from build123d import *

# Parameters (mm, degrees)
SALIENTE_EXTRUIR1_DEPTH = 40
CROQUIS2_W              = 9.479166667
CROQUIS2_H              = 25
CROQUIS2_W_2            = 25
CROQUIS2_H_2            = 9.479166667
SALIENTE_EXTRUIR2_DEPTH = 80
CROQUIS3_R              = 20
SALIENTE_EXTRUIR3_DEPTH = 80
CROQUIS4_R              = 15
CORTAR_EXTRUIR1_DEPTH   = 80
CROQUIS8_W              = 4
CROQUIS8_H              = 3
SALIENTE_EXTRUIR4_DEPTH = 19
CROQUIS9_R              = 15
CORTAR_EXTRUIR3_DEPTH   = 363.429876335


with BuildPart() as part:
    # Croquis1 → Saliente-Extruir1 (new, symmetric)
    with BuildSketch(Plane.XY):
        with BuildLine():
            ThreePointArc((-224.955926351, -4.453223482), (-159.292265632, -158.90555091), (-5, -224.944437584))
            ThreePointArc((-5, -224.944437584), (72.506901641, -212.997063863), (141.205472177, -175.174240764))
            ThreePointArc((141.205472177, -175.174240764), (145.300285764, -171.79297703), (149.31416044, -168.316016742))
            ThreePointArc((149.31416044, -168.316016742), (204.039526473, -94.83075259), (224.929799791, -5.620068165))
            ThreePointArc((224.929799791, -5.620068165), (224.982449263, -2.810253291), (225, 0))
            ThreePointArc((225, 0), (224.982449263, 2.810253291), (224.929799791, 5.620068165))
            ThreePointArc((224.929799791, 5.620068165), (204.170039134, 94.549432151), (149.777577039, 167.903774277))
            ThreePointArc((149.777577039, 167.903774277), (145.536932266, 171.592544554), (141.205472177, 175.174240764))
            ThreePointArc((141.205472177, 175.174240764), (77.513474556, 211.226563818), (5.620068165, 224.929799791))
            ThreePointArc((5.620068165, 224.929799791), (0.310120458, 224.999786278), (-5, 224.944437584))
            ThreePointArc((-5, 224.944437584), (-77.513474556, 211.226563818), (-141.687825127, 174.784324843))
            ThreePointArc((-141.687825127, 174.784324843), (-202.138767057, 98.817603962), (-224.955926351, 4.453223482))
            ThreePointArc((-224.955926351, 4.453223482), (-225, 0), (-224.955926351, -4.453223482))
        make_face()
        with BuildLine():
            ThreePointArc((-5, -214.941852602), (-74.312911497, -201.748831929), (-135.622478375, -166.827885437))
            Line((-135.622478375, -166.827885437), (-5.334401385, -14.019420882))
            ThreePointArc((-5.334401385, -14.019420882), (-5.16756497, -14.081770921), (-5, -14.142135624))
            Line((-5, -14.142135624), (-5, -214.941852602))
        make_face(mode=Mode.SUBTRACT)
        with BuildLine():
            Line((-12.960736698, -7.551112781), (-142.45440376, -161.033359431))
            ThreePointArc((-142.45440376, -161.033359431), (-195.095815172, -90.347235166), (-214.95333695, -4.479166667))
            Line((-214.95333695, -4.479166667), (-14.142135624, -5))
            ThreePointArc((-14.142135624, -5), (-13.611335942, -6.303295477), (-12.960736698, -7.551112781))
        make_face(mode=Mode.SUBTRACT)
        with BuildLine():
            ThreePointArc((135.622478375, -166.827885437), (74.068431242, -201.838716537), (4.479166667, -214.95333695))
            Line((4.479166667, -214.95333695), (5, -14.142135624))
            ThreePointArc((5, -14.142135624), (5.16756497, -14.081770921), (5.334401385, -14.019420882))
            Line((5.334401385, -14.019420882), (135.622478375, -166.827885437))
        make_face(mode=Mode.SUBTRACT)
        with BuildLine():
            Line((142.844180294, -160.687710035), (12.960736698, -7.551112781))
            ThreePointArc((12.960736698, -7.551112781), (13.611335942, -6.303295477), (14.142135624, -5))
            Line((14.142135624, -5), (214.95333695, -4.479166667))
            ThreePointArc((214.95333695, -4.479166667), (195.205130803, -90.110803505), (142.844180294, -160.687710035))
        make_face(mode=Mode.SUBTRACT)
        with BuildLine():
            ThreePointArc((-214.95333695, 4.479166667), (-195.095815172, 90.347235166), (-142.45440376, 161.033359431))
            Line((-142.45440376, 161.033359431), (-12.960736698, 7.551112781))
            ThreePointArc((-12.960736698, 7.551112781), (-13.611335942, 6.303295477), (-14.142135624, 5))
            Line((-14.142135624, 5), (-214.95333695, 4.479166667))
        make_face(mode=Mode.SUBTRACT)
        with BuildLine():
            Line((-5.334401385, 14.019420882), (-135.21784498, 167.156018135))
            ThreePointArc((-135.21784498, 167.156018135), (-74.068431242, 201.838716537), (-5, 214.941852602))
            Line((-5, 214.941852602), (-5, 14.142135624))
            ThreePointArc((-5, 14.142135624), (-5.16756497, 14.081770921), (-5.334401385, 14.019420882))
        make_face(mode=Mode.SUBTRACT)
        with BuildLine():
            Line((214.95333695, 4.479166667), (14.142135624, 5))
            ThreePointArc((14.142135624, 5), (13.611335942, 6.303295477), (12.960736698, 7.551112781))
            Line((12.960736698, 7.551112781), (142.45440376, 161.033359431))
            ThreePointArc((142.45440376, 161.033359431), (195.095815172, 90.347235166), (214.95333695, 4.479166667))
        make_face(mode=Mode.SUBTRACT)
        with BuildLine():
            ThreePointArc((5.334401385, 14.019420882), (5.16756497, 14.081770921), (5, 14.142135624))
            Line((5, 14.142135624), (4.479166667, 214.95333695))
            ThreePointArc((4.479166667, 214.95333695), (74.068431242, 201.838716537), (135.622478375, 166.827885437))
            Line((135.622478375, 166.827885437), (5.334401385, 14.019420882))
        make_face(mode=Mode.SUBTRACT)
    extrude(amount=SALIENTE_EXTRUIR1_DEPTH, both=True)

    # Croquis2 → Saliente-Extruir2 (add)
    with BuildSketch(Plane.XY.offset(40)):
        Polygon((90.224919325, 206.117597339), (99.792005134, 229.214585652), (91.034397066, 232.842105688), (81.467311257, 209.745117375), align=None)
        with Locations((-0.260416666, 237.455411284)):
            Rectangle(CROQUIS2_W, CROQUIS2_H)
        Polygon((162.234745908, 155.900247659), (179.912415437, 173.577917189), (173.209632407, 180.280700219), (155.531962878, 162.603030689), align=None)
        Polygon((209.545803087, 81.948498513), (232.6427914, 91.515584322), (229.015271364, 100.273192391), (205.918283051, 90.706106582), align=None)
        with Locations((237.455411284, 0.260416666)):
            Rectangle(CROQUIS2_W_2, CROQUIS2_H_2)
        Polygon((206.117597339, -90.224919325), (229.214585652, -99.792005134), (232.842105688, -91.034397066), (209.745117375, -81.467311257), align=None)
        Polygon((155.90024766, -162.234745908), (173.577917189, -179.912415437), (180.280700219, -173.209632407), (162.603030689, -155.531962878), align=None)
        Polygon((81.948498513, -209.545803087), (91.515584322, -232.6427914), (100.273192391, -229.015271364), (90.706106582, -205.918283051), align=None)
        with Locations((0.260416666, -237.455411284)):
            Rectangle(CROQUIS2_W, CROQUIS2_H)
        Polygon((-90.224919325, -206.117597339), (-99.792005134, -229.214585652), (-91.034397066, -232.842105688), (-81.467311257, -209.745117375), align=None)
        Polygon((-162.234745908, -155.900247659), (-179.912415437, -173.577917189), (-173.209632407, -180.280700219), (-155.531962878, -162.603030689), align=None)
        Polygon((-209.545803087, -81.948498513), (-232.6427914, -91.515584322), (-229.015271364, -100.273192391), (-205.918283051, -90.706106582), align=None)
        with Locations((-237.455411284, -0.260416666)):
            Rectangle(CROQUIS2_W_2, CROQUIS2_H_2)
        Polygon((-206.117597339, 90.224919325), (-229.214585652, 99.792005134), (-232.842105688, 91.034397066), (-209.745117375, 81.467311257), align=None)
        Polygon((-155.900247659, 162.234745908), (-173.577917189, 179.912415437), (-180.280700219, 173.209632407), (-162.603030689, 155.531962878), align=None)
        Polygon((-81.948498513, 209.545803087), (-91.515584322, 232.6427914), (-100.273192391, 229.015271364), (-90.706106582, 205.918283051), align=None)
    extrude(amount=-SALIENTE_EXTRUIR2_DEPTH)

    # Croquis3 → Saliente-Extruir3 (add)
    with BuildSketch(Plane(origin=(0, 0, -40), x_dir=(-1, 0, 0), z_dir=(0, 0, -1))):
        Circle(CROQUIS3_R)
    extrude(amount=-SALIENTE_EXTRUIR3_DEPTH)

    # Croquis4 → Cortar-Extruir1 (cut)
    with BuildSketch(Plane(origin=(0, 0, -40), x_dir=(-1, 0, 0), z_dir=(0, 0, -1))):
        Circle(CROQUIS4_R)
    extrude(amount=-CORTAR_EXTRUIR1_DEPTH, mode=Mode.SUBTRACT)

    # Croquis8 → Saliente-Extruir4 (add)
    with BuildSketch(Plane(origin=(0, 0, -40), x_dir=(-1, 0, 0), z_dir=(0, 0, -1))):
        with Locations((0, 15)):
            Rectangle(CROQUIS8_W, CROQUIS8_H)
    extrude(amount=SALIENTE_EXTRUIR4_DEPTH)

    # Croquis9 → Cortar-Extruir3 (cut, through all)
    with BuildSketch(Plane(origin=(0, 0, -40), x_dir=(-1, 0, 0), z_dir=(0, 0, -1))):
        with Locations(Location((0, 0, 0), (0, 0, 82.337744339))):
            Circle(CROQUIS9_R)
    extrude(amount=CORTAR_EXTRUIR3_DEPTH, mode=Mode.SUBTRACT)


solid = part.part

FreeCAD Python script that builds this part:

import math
import FreeCAD as App
import Part
import Sketcher

V = App.Vector
Q = App.Units.Quantity


def add_polygon(sketch, points):
    """Adds a closed chain of lines whose ends are joined by coincident constraints."""
    first, n = sketch.GeometryCount, len(points)
    for a, b in zip(points, points[1:] + points[:1]):
        sketch.addGeometry(Part.LineSegment(App.Vector(*a, 0), App.Vector(*b, 0)), False)
    for i in range(n):
        sketch.addConstraint(Sketcher.Constraint("Coincident", first + i, 2, first + (i + 1) % n, 1))

doc = App.newDocument("Part")
body = doc.addObject("PartDesign::Body", "Body")

sketch1 = doc.addObject("Sketcher::SketchObject", "Sketch")
body.addObject(sketch1)
sketch1.AttachmentSupport = (doc.XY_Plane, [""])
sketch1.MapMode = "FlatFace"
sketch1.addGeometry(Part.ArcOfCircle(Part.Circle(V(0, 0, 0), V(0, 0, 1), 225), math.radians(-178.865922), math.radians(-91.273344)), False)
sketch1.addGeometry(Part.ArcOfCircle(Part.Circle(V(0, 0, 0), V(0, 0, 1), 225), math.radians(-91.273344), math.radians(-51.128205)), False)
sketch1.addGeometry(Part.ArcOfCircle(Part.Circle(V(0, 0, 0), V(0, 0, 1), 225), math.radians(-51.128205), math.radians(-48.423573)), False)
sketch1.addGeometry(Part.ArcOfCircle(Part.Circle(V(0, 0, 0), V(0, 0, 1), 225), math.radians(-48.423573), math.radians(-1.431287)), False)
sketch1.addGeometry(Part.ArcOfCircle(Part.Circle(V(-0.000005, 0, 0), V(0, 0, 1), 225.000005), math.radians(-1.431287), math.radians(0)), False)
sketch1.addGeometry(Part.ArcOfCircle(Part.Circle(V(-0.000005, 0, 0), V(0, 0, 1), 225.000005), math.radians(0), math.radians(1.431287)), False)
sketch1.addGeometry(Part.ArcOfCircle(Part.Circle(V(0, 0, 0), V(0, 0, 1), 225), math.radians(1.431287), math.radians(48.26563)), False)
sketch1.addGeometry(Part.ArcOfCircle(Part.Circle(V(-0.000001, -0.000001, 0), V(0, 0, 1), 225.000001), math.radians(48.26563), math.radians(51.128205)), False)
sketch1.addGeometry(Part.ArcOfCircle(Part.Circle(V(0, 0, 0), V(0, 0, 1), 225), math.radians(51.128205), math.radians(88.568713)), False)
sketch1.addGeometry(Part.ArcOfCircle(Part.Circle(V(0, -0.000002, 0), V(0, 0, 1), 225.000002), math.radians(88.568713), math.radians(91.273344)), False)
sketch1.addGeometry(Part.ArcOfCircle(Part.Circle(V(0, 0, 0), V(0, 0, 1), 225), math.radians(91.273344), math.radians(129.029738)), False)
sketch1.addGeometry(Part.ArcOfCircle(Part.Circle(V(0, 0, 0), V(0, 0, 1), 225), math.radians(129.029738), math.radians(178.865922)), False)
sketch1.addGeometry(Part.ArcOfCircle(Part.Circle(V(-0.000002, 0, 0), V(0, 0, 1), 224.999998), math.radians(178.865922), math.radians(181.134078)), False)
sketch1.addGeometry(Part.LineSegment(V(-5, -14.142136, 0), V(-5, -214.941853, 0)), False)
sketch1.addGeometry(Part.ArcOfCircle(Part.Circle(V(0, 0, 0), V(0, 0, 1), 215), math.radians(-129.109334), math.radians(-91.33258)), False)
sketch1.addGeometry(Part.LineSegment(V(-135.622478, -166.827885, 0), V(-5.334401, -14.019421, 0)), False)
sketch1.addGeometry(Part.ArcOfCircle(Part.Circle(V(0.000002, 0.000006, 0), V(0, 0, 1), 15.000007), math.radians(-110.831862), math.radians(-109.471221)), False)
sketch1.addGeometry(Part.ArcOfCircle(Part.Circle(V(0, 0, 0), V(0, 0, 1), 15), math.radians(-160.528779), math.radians(-149.774303)), False)
sketch1.addGeometry(Part.LineSegment(V(-12.960737, -7.551113, 0), V(-142.454404, -161.033359, 0)), False)
sketch1.addGeometry(Part.ArcOfCircle(Part.Circle(V(0, 0, 0), V(0, 0, 1), 215), math.radians(-178.806252), math.radians(-131.496831)), False)
sketch1.addGeometry(Part.LineSegment(V(-214.953337, -4.479167, 0), V(-14.142136, -5, 0)), False)
sketch1.addGeometry(Part.LineSegment(V(5.334401, -14.019421, 0), V(135.622478, -166.827885, 0)), False)
sketch1.addGeometry(Part.ArcOfCircle(Part.Circle(V(0, 0, 0), V(0, 0, 1), 215), math.radians(-88.806252), math.radians(-50.890666)), False)
sketch1.addGeometry(Part.LineSegment(V(4.479167, -214.953337, 0), V(5, -14.142136, 0)), False)
sketch1.addGeometry(Part.ArcOfCircle(Part.Circle(V(-0.000002, 0.000006, 0), V(0, 0, 1), 15.000007), math.radians(-70.528779), math.radians(-69.168138)), False)
sketch1.addGeometry(Part.ArcOfCircle(Part.Circle(V(0, 0, 0), V(0, 0, 1), 215), math.radians(-48.364337), math.radians(-1.193748)), False)
sketch1.addGeometry(Part.LineSegment(V(142.84418, -160.68771, 0), V(12.960737, -7.551113, 0)), False)
sketch1.addGeometry(Part.ArcOfCircle(Part.Circle(V(0, 0, 0), V(0, 0, 1), 15), math.radians(-30.225697), math.radians(-19.471221)), False)
sketch1.addGeometry(Part.LineSegment(V(14.142136, -5, 0), V(214.953337, -4.479167, 0)), False)
sketch1.addGeometry(Part.LineSegment(V(-14.142136, 5, 0), V(-214.953337, 4.479167, 0)), False)
sketch1.addGeometry(Part.ArcOfCircle(Part.Circle(V(0, 0, 0), V(0, 0, 1), 215), math.radians(131.496831), math.radians(178.806252)), False)
sketch1.addGeometry(Part.LineSegment(V(-142.454404, 161.033359, 0), V(-12.960737, 7.551113, 0)), False)
sketch1.addGeometry(Part.ArcOfCircle(Part.Circle(V(0, 0, 0), V(0, 0, 1), 15), math.radians(149.774303), math.radians(160.528779)), False)
sketch1.addGeometry(Part.ArcOfCircle(Part.Circle(V(0.000002, -0.000006, 0), V(0, 0, 1), 15.000007), math.radians(109.471221), math.radians(110.831862)), False)
sketch1.addGeometry(Part.LineSegment(V(-5.334401, 14.019421, 0), V(-135.217845, 167.156018, 0)), False)
sketch1.addGeometry(Part.ArcOfCircle(Part.Circle(V(0, 0, 0), V(0, 0, 1), 215), math.radians(91.33258), math.radians(128.970502)), False)
sketch1.addGeometry(Part.LineSegment(V(-5, 214.941853, 0), V(-5, 14.142136, 0)), False)
sketch1.addGeometry(Part.ArcOfCircle(Part.Circle(V(0, 0, 0), V(0, 0, 1), 215), math.radians(1.193748), math.radians(48.503169)), False)
sketch1.addGeometry(Part.LineSegment(V(214.953337, 4.479167, 0), V(14.142136, 5, 0)), False)
sketch1.addGeometry(Part.ArcOfCircle(Part.Circle(V(0, 0, 0), V(0, 0, 1), 15), math.radians(19.471221), math.radians(30.225697)), False)
sketch1.addGeometry(Part.LineSegment(V(12.960737, 7.551113, 0), V(142.454404, 161.033359, 0)), False)
sketch1.addGeometry(Part.LineSegment(V(135.622478, 166.827885, 0), V(5.334401, 14.019421, 0)), False)
sketch1.addGeometry(Part.ArcOfCircle(Part.Circle(V(-0.000002, -0.000006, 0), V(0, 0, 1), 15.000007), math.radians(69.168138), math.radians(70.528779)), False)
sketch1.addGeometry(Part.LineSegment(V(5, 14.142136, 0), V(4.479167, 214.953337, 0)), False)
sketch1.addGeometry(Part.ArcOfCircle(Part.Circle(V(0, 0, 0), V(0, 0, 1), 215), math.radians(50.890666), math.radians(88.806252)), False)
sketch1.addConstraint(Sketcher.Constraint("Tangent", 0, 2, 1, 1))
sketch1.addConstraint(Sketcher.Constraint("Tangent", 1, 2, 2, 1))
sketch1.addConstraint(Sketcher.Constraint("Tangent", 2, 2, 3, 1))
sketch1.addConstraint(Sketcher.Constraint("Tangent", 3, 2, 4, 1))
sketch1.addConstraint(Sketcher.Constraint("Tangent", 4, 2, 5, 1))
sketch1.addConstraint(Sketcher.Constraint("Tangent", 5, 2, 6, 1))
sketch1.addConstraint(Sketcher.Constraint("Tangent", 6, 2, 7, 1))
sketch1.addConstraint(Sketcher.Constraint("Tangent", 7, 2, 8, 1))
sketch1.addConstraint(Sketcher.Constraint("Tangent", 8, 2, 9, 1))
sketch1.addConstraint(Sketcher.Constraint("Tangent", 9, 2, 10, 1))
sketch1.addConstraint(Sketcher.Constraint("Tangent", 10, 2, 11, 1))
sketch1.addConstraint(Sketcher.Constraint("Tangent", 11, 2, 12, 1))
sketch1.addConstraint(Sketcher.Constraint("Tangent", 12, 2, 0, 1))
sketch1.addConstraint(Sketcher.Constraint("Coincident", 13, 2, 14, 2))
sketch1.addConstraint(Sketcher.Constraint("Coincident", 14, 1, 15, 1))
sketch1.addConstraint(Sketcher.Constraint("Coincident", 15, 2, 16, 1))
sketch1.addConstraint(Sketcher.Constraint("Coincident", 16, 2, 13, 1))
sketch1.addConstraint(Sketcher.Constraint("Coincident", 17, 2, 18, 1))
sketch1.addConstraint(Sketcher.Constraint("Coincident", 18, 2, 19, 2))
sketch1.addConstraint(Sketcher.Constraint("Coincident", 19, 1, 20, 1))
sketch1.addConstraint(Sketcher.Constraint("Coincident", 20, 2, 17, 1))
sketch1.addConstraint(Sketcher.Constraint("Coincident", 21, 2, 22, 2))
sketch1.addConstraint(Sketcher.Constraint("Coincident", 22, 1, 23, 1))
sketch1.addConstraint(Sketcher.Constraint("Coincident", 23, 2, 24, 1))
sketch1.addConstraint(Sketcher.Constraint("Coincident", 24, 2, 21, 1))
sketch1.addConstraint(Sketcher.Constraint("Coincident", 25, 1, 26, 1))
sketch1.addConstraint(Sketcher.Constraint("Coincident", 26, 2, 27, 1))
sketch1.addConstraint(Sketcher.Constraint("Coincident", 27, 2, 28, 1))
sketch1.addConstraint(Sketcher.Constraint("Coincident", 28, 2, 25, 2))
sketch1.addConstraint(Sketcher.Constraint("Coincident", 29, 2, 30, 2))
sketch1.addConstraint(Sketcher.Constraint("Coincident", 30, 1, 31, 1))
sketch1.addConstraint(Sketcher.Constraint("Coincident", 31, 2, 32, 1))
sketch1.addConstraint(Sketcher.Constraint("Coincident", 32, 2, 29, 1))
sketch1.addConstraint(Sketcher.Constraint("Coincident", 33, 2, 34, 1))
sketch1.addConstraint(Sketcher.Constraint("Coincident", 34, 2, 35, 2))
sketch1.addConstraint(Sketcher.Constraint("Coincident", 35, 1, 36, 1))
sketch1.addConstraint(Sketcher.Constraint("Coincident", 36, 2, 33, 1))
sketch1.addConstraint(Sketcher.Constraint("Coincident", 37, 1, 38, 1))
sketch1.addConstraint(Sketcher.Constraint("Coincident", 38, 2, 39, 1))
sketch1.addConstraint(Sketcher.Constraint("Coincident", 39, 2, 40, 1))
sketch1.addConstraint(Sketcher.Constraint("Coincident", 40, 2, 37, 2))
sketch1.addConstraint(Sketcher.Constraint("Coincident", 41, 2, 42, 1))
sketch1.addConstraint(Sketcher.Constraint("Coincident", 42, 2, 43, 1))
sketch1.addConstraint(Sketcher.Constraint("Coincident", 43, 2, 44, 2))
sketch1.addConstraint(Sketcher.Constraint("Coincident", 44, 1, 41, 1))
sketch1.addConstraint(Sketcher.Constraint("Vertical", 13))
sketch1.addConstraint(Sketcher.Constraint("Vertical", 36))
sketch1.addConstraint(Sketcher.Constraint("Coincident", 0, 3, -1, 1))
sketch1.addConstraint(Sketcher.Constraint("Coincident", 2, 3, -1, 1))
sketch1.addConstraint(Sketcher.Constraint("Coincident", 4, 3, -1, 1))
sketch1.addConstraint(Sketcher.Constraint("Coincident", 6, 3, -1, 1))
sketch1.addConstraint(Sketcher.Constraint("Coincident", 8, 3, -1, 1))
sketch1.addConstraint(Sketcher.Constraint("Coincident", 10, 3, -1, 1))
sketch1.addConstraint(Sketcher.Constraint("Coincident", 14, 3, -1, 1))
sketch1.addConstraint(Sketcher.Constraint("Coincident", 16, 3, -1, 1))
sketch1.addConstraint(Sketcher.Constraint("Coincident", 17, 3, -1, 1))
sketch1.addConstraint(Sketcher.Constraint("Coincident", 19, 3, -1, 1))
sketch1.addConstraint(Sketcher.Constraint("Coincident", 22, 3, -1, 1))
sketch1.addConstraint(Sketcher.Constraint("Coincident", 24, 3, -1, 1))
sketch1.addConstraint(Sketcher.Constraint("Coincident", 25, 3, -1, 1))
sketch1.addConstraint(Sketcher.Constraint("Coincident", 27, 3, -1, 1))
sketch1.addConstraint(Sketcher.Constraint("Coincident", 30, 3, -1, 1))
sketch1.addConstraint(Sketcher.Constraint("Coincident", 32, 3, -1, 1))
sketch1.addConstraint(Sketcher.Constraint("Coincident", 33, 3, -1, 1))
sketch1.addConstraint(Sketcher.Constraint("Coincident", 35, 3, -1, 1))
sketch1.addConstraint(Sketcher.Constraint("Coincident", 37, 3, -1, 1))
sketch1.addConstraint(Sketcher.Constraint("Coincident", 39, 3, -1, 1))
sketch1.addConstraint(Sketcher.Constraint("Coincident", 42, 3, -1, 1))
sketch1.addConstraint(Sketcher.Constraint("Coincident", 44, 3, -1, 1))
sketch1.addConstraint(Sketcher.Constraint("Equal", 14, 19))
sketch1.addConstraint(Sketcher.Constraint("Equal", 19, 22))
sketch1.addConstraint(Sketcher.Constraint("Equal", 16, 24))
sketch1.addConstraint(Sketcher.Constraint("Equal", 22, 25))
sketch1.addConstraint(Sketcher.Constraint("Equal", 17, 27))
sketch1.addConstraint(Sketcher.Constraint("Equal", 25, 30))
sketch1.addConstraint(Sketcher.Constraint("Equal", 27, 32))
sketch1.addConstraint(Sketcher.Constraint("Equal", 24, 33))
sketch1.addConstraint(Sketcher.Constraint("Equal", 30, 35))
sketch1.addConstraint(Sketcher.Constraint("Equal", 35, 37))
sketch1.addConstraint(Sketcher.Constraint("Equal", 32, 39))
sketch1.addConstraint(Sketcher.Constraint("Equal", 33, 42))
sketch1.addConstraint(Sketcher.Constraint("Equal", 37, 44))
sketch1.addConstraint(Sketcher.Constraint("PointOnObject", 4, 2, -1))
sketch1.addConstraint(Sketcher.Constraint("Perpendicular", 20, 23))
sketch1.addConstraint(Sketcher.Constraint("Parallel", 28, 29))
sketch1.addConstraint(Sketcher.Constraint("Parallel", 26, 34))
sketch1.addConstraint(Sketcher.Constraint("Perpendicular", 23, 38))
sketch1.addConstraint(Sketcher.Constraint("Parallel", 18, 40))
sketch1.addConstraint(Sketcher.Constraint("Parallel", 15, 41))
sketch1.addConstraint(Sketcher.Constraint("Perpendicular", 29, 43))
sketch1.addConstraint(Sketcher.Constraint("Horizontal", 14, 1, 21, 2))
sketch1.addConstraint(Sketcher.Constraint("Horizontal", 16, 2, 23, 2))
sketch1.addConstraint(Sketcher.Constraint("Horizontal", 15, 2, 24, 2))
sketch1.addConstraint(Sketcher.Constraint("Horizontal", 17, 2, 26, 2))
sketch1.addConstraint(Sketcher.Constraint("Horizontal", 20, 2, 27, 2))
sketch1.addConstraint(Sketcher.Constraint("Horizontal", 19, 1, 28, 2))
sketch1.addConstraint(Sketcher.Constraint("Horizontal", 29, 2, 37, 1))
sketch1.addConstraint(Sketcher.Constraint("Horizontal", 31, 2, 39, 2))
sketch1.addConstraint(Sketcher.Constraint("Horizontal", 30, 1, 40, 2))
sketch1.addConstraint(Sketcher.Constraint("Horizontal", 33, 2, 41, 2))
sketch1.addConstraint(Sketcher.Constraint("Horizontal", 36, 2, 42, 2))
sketch1.addConstraint(Sketcher.Constraint("Vertical", 3, 2, 5, 2))
sketch1.addConstraint(Sketcher.Constraint("Vertical", 1, 2, 7, 2))
sketch1.addConstraint(Sketcher.Constraint("Vertical", 0, 2, 9, 2))
sketch1.addConstraint(Sketcher.Constraint("Vertical", 11, 2, 12, 2))
sketch1.addConstraint(Sketcher.Constraint("Vertical", 9, 2, 13, 2))
sketch1.addConstraint(Sketcher.Constraint("Vertical", 19, 1, 29, 2))
sketch1.addConstraint(Sketcher.Constraint("Vertical", 18, 2, 30, 1))
sketch1.addConstraint(Sketcher.Constraint("Vertical", 15, 2, 33, 2))
sketch1.addConstraint(Sketcher.Constraint("Vertical", 16, 2, 35, 1))
sketch1.addConstraint(Sketcher.Constraint("Equal", 15, 18))
sketch1.addConstraint(Sketcher.Constraint("Equal", 18, 20))
sketch1.addConstraint(Sketcher.Constraint("Equal", 21, 23))
sketch1.addConstraint(Sketcher.Constraint("Equal", 26, 34))
sketch1.addConstraint(Sketcher.Constraint("Radius", 0, Q("225 mm")))
sketch1.addConstraint(Sketcher.Constraint("Radius", 14, Q("215 mm")))
sketch1.addConstraint(Sketcher.Constraint("Radius", 17, Q("15 mm")))
sketch1.addConstraint(Sketcher.Constraint("DistanceX", 13, 2, -1, 1, Q("5 mm")))
sketch1.addConstraint(Sketcher.Constraint("DistanceY", 20, 2, -1, 1, Q("5 mm")))
sketch1.addConstraint(Sketcher.Constraint("DistanceX", -1, 1, 3, 2, Q("224.9298 mm")))
sketch1.addConstraint(Sketcher.Constraint("DistanceY", -1, 1, 8, 2, Q("224.9298 mm")))
sketch1.addConstraint(Sketcher.Constraint("DistanceX", 15, 2, -1, 1, Q("5.334401 mm")))
sketch1.addConstraint(Sketcher.Constraint("DistanceY", 1, 2, -1, 1, Q("175.174241 mm")))
sketch1.addConstraint(Sketcher.Constraint("DistanceX", -1, 1, 2, 2, Q("149.31416 mm")))
sketch1.addConstraint(Sketcher.Constraint("DistanceY", 18, 2, -1, 1, Q("161.033359 mm")))
sketch1.addConstraint(Sketcher.Constraint("DistanceX", -1, 1, 21, 2, Q("135.622478 mm")))
sketch1.addConstraint(Sketcher.Constraint("DistanceX", -1, 1, 6, 2, Q("149.777577 mm")))
sketch1.addConstraint(Sketcher.Constraint("DistanceX", 10, 2, -1, 1, Q("141.687825 mm")))
sketch1.addConstraint(Sketcher.Constraint("DistanceX", 11, 2, -1, 1, Q("224.955926 mm")))
pad1 = doc.addObject("PartDesign::Pad", "Pad")
body.addObject(pad1)
pad1.Profile = sketch1
pad1.Length = 80
pad1.Midplane = True

sketch2 = doc.addObject("Sketcher::SketchObject", "Sketch001")
body.addObject(sketch2)
sketch2.AttachmentSupport = (doc.XY_Plane, [""])
sketch2.MapMode = "FlatFace"
sketch2.AttachmentOffset = App.Placement(V(0, 0, 40), App.Rotation())
add_polygon(sketch2, [(90.224919, 206.117597), (99.792005, 229.214586), (91.034397, 232.842106), (81.467311, 209.745117)])
add_polygon(sketch2, [(-5, 249.955411), (-5, 224.955411), (4.479167, 224.955411), (4.479167, 249.955411)])
add_polygon(sketch2, [(162.234746, 155.900248), (179.912415, 173.577917), (173.209632, 180.2807), (155.531963, 162.603031)])
add_polygon(sketch2, [(209.545803, 81.948499), (232.642791, 91.515584), (229.015271, 100.273192), (205.918283, 90.706107)])
add_polygon(sketch2, [(224.955411, 5), (224.955411, -4.479167), (249.955411, -4.479167), (249.955411, 5)])
add_polygon(sketch2, [(206.117597, -90.224919), (229.214586, -99.792005), (232.842106, -91.034397), (209.745117, -81.467311)])
add_polygon(sketch2, [(155.900248, -162.234746), (173.577917, -179.912415), (180.2807, -173.209632), (162.603031, -155.531963)])
add_polygon(sketch2, [(81.948499, -209.545803), (91.515584, -232.642791), (100.273192, -229.015271), (90.706107, -205.918283)])
add_polygon(sketch2, [(-4.479167, -224.955411), (-4.479167, -249.955411), (5, -249.955411), (5, -224.955411)])
add_polygon(sketch2, [(-90.224919, -206.117597), (-99.792005, -229.214586), (-91.034397, -232.842106), (-81.467311, -209.745117)])
add_polygon(sketch2, [(-162.234746, -155.900248), (-179.912415, -173.577917), (-173.209632, -180.2807), (-155.531963, -162.603031)])
add_polygon(sketch2, [(-209.545803, -81.948499), (-232.642791, -91.515584), (-229.015271, -100.273192), (-205.918283, -90.706107)])
add_polygon(sketch2, [(-249.955411, 4.479167), (-249.955411, -5), (-224.955411, -5), (-224.955411, 4.479167)])
add_polygon(sketch2, [(-206.117597, 90.224919), (-229.214586, 99.792005), (-232.842106, 91.034397), (-209.745117, 81.467311)])
add_polygon(sketch2, [(-155.900248, 162.234746), (-173.577917, 179.912415), (-180.2807, 173.209632), (-162.603031, 155.531963)])
add_polygon(sketch2, [(-81.948499, 209.545803), (-91.515584, 232.642791), (-100.273192, 229.015271), (-90.706107, 205.918283)])
sketch2.addConstraint(Sketcher.Constraint("Vertical", 4))
sketch2.addConstraint(Sketcher.Constraint("Horizontal", 5))
sketch2.addConstraint(Sketcher.Constraint("Vertical", 6))
sketch2.addConstraint(Sketcher.Constraint("Horizontal", 7))
sketch2.addConstraint(Sketcher.Constraint("Vertical", 16))
sketch2.addConstraint(Sketcher.Constraint("Horizontal", 17))
sketch2.addConstraint(Sketcher.Constraint("Vertical", 18))
sketch2.addConstraint(Sketcher.Constraint("Horizontal", 19))
sketch2.addConstraint(Sketcher.Constraint("Vertical", 32))
sketch2.addConstraint(Sketcher.Constraint("Horizontal", 33))
sketch2.addConstraint(Sketcher.Constraint("Vertical", 34))
sketch2.addConstraint(Sketcher.Constraint("Horizontal", 35))
sketch2.addConstraint(Sketcher.Constraint("Vertical", 48))
sketch2.addConstraint(Sketcher.Constraint("Horizontal", 49))
sketch2.addConstraint(Sketcher.Constraint("Vertical", 50))
sketch2.addConstraint(Sketcher.Constraint("Horizontal", 51))
sketch2.addConstraint(Sketcher.Constraint("Symmetric", 6, 2, 32, 2, -1, 1))
sketch2.addConstraint(Sketcher.Constraint("Symmetric", 4, 2, 34, 2, -1, 1))
sketch2.addConstraint(Sketcher.Constraint("Symmetric", 0, 2, 36, 2, -1, 1))
sketch2.addConstraint(Sketcher.Constraint("Symmetric", 1, 2, 37, 2, -1, 1))
sketch2.addConstraint(Sketcher.Constraint("Symmetric", 2, 2, 38, 2, -1, 1))
sketch2.addConstraint(Sketcher.Constraint("Symmetric", 3, 2, 39, 2, -1, 1))
sketch2.addConstraint(Sketcher.Constraint("Symmetric", 8, 2, 40, 2, -1, 1))
sketch2.addConstraint(Sketcher.Constraint("Symmetric", 9, 2, 41, 2, -1, 1))
sketch2.addConstraint(Sketcher.Constraint("Symmetric", 10, 2, 42, 2, -1, 1))
sketch2.addConstraint(Sketcher.Constraint("Symmetric", 11, 2, 43, 2, -1, 1))
sketch2.addConstraint(Sketcher.Constraint("Symmetric", 12, 2, 44, 2, -1, 1))
sketch2.addConstraint(Sketcher.Constraint("Symmetric", 13, 2, 45, 2, -1, 1))
sketch2.addConstraint(Sketcher.Constraint("Symmetric", 14, 2, 46, 2, -1, 1))
sketch2.addConstraint(Sketcher.Constraint("Symmetric", 15, 2, 47, 2, -1, 1))
sketch2.addConstraint(Sketcher.Constraint("Symmetric", 18, 2, 48, 2, -1, 1))
sketch2.addConstraint(Sketcher.Constraint("Symmetric", 16, 2, 50, 2, -1, 1))
sketch2.addConstraint(Sketcher.Constraint("Symmetric", 20, 2, 52, 2, -1, 1))
sketch2.addConstraint(Sketcher.Constraint("Symmetric", 21, 2, 53, 2, -1, 1))
sketch2.addConstraint(Sketcher.Constraint("Symmetric", 22, 2, 54, 2, -1, 1))
sketch2.addConstraint(Sketcher.Constraint("Symmetric", 23, 2, 55, 2, -1, 1))
sketch2.addConstraint(Sketcher.Constraint("Symmetric", 24, 2, 56, 2, -1, 1))
sketch2.addConstraint(Sketcher.Constraint("Symmetric", 25, 2, 57, 2, -1, 1))
sketch2.addConstraint(Sketcher.Constraint("Symmetric", 26, 2, 58, 2, -1, 1))
sketch2.addConstraint(Sketcher.Constraint("Symmetric", 27, 2, 59, 2, -1, 1))
sketch2.addConstraint(Sketcher.Constraint("Symmetric", 28, 2, 60, 2, -1, 1))
sketch2.addConstraint(Sketcher.Constraint("Symmetric", 29, 2, 61, 2, -1, 1))
sketch2.addConstraint(Sketcher.Constraint("Symmetric", 30, 2, 62, 2, -1, 1))
sketch2.addConstraint(Sketcher.Constraint("Symmetric", 31, 2, 63, 2, -1, 1))
sketch2.addConstraint(Sketcher.Constraint("Perpendicular", 0, 1))
sketch2.addConstraint(Sketcher.Constraint("Perpendicular", 1, 2))
sketch2.addConstraint(Sketcher.Constraint("Perpendicular", 2, 3))
sketch2.addConstraint(Sketcher.Constraint("Perpendicular", 8, 9))
sketch2.addConstraint(Sketcher.Constraint("Perpendicular", 9, 10))
sketch2.addConstraint(Sketcher.Constraint("Perpendicular", 10, 11))
sketch2.addConstraint(Sketcher.Constraint("Perpendicular", 12, 13))
sketch2.addConstraint(Sketcher.Constraint("Perpendicular", 13, 14))
sketch2.addConstraint(Sketcher.Constraint("Perpendicular", 14, 15))
sketch2.addConstraint(Sketcher.Constraint("Parallel", 3, 20))
sketch2.addConstraint(Sketcher.Constraint("Perpendicular", 20, 21))
sketch2.addConstraint(Sketcher.Constraint("Perpendicular", 21, 22))
sketch2.addConstraint(Sketcher.Constraint("Perpendicular", 22, 23))
sketch2.addConstraint(Sketcher.Constraint("Parallel", 11, 24))
sketch2.addConstraint(Sketcher.Constraint("Perpendicular", 24, 25))
sketch2.addConstraint(Sketcher.Constraint("Perpendicular", 25, 26))
sketch2.addConstraint(Sketcher.Constraint("Perpendicular", 26, 27))
sketch2.addConstraint(Sketcher.Constraint("Parallel", 15, 28))
sketch2.addConstraint(Sketcher.Constraint("Perpendicular", 28, 29))
sketch2.addConstraint(Sketcher.Constraint("Perpendicular", 29, 30))
sketch2.addConstraint(Sketcher.Constraint("Perpendicular", 30, 31))
sketch2.addConstraint(Sketcher.Constraint("Equal", 51, 4))
sketch2.addConstraint(Sketcher.Constraint("Equal", 35, 16))
sketch2.addConstraint(Sketcher.Constraint("Equal", 2, 8))
sketch2.addConstraint(Sketcher.Constraint("Equal", 3, 9))
sketch2.addConstraint(Sketcher.Constraint("Equal", 10, 12))
sketch2.addConstraint(Sketcher.Constraint("Equal", 11, 13))
sketch2.addConstraint(Sketcher.Constraint("Equal", 14, 20))
sketch2.addConstraint(Sketcher.Constraint("Equal", 15, 21))
sketch2.addConstraint(Sketcher.Constraint("Equal", 22, 24))
sketch2.addConstraint(Sketcher.Constraint("Equal", 23, 25))
sketch2.addConstraint(Sketcher.Constraint("Equal", 26, 28))
sketch2.addConstraint(Sketcher.Constraint("Equal", 27, 29))
sketch2.addConstraint(Sketcher.Constraint("DistanceX", 17, 1, 17, 2, Q("25 mm")))
sketch2.addConstraint(Sketcher.Constraint("Angle", 8, Q("45 deg")))
sketch2.addConstraint(Sketcher.Constraint("Distance", 0, Q("25 mm")))
sketch2.addConstraint(Sketcher.Constraint("DistanceX", 4, 2, -1, 1, Q("5 mm")))
sketch2.addConstraint(Sketcher.Constraint("DistanceY", -1, 1, 18, 2, Q("5 mm")))
sketch2.addConstraint(Sketcher.Constraint("Angle", 0, Q("67.5 deg")))
sketch2.addConstraint(Sketcher.Constraint("Angle", 12, Q("22.5 deg")))
sketch2.addConstraint(Sketcher.Constraint("DistanceY", -1, 1, 9, 2, Q("180.2807 mm")))
sketch2.addConstraint(Sketcher.Constraint("DistanceY", -1, 1, 15, 2, Q("81.948499 mm")))
sketch2.addConstraint(Sketcher.Constraint("DistanceX", -1, 1, 25, 2, Q("180.2807 mm")))
sketch2.addConstraint(Sketcher.Constraint("DistanceX", -1, 1, 31, 2, Q("81.948499 mm")))
sketch2.addConstraint(Sketcher.Constraint("DistanceX", 5, 1, 5, 2, Q("9.479167 mm")))
sketch2.addConstraint(Sketcher.Constraint("DistanceX", -1, 1, 2, 2, Q("81.467311 mm")))
sketch2.addConstraint(Sketcher.Constraint("DistanceX", -1, 1, 3, 2, Q("90.224919 mm")))
sketch2.addConstraint(Sketcher.Constraint("DistanceY", -1, 1, 4, 2, Q("224.955411 mm")))
sketch2.addConstraint(Sketcher.Constraint("DistanceX", -1, 1, 12, 2, Q("232.642791 mm")))
sketch2.addConstraint(Sketcher.Constraint("DistanceX", -1, 1, 16, 2, Q("224.955411 mm")))
sketch2.addConstraint(Sketcher.Constraint("DistanceY", 22, 2, -1, 1, Q("81.467311 mm")))
sketch2.addConstraint(Sketcher.Constraint("DistanceY", 28, 2, -1, 1, Q("232.642791 mm")))
sketch2.addConstraint(Sketcher.Constraint("DistanceY", -1, 1, 0, 2, Q("229.214586 mm")))
sketch2.addConstraint(Sketcher.Constraint("DistanceX", -1, 1, 8, 2, Q("179.912415 mm")))
sketch2.addConstraint(Sketcher.Constraint("DistanceX", -1, 1, 20, 2, Q("229.214586 mm")))
sketch2.addConstraint(Sketcher.Constraint("DistanceY", 24, 2, -1, 1, Q("179.912415 mm")))
pad2 = doc.addObject("PartDesign::Pad", "Pad001")
body.addObject(pad2)
pad2.Profile = sketch2
pad2.Length = 80
pad2.Reversed = True

sketch3 = doc.addObject("Sketcher::SketchObject", "Sketch002")
body.addObject(sketch3)
sketch3.AttachmentSupport = (doc.XY_Plane, [""])
sketch3.MapMode = "FlatFace"
sketch3.AttachmentOffset = App.Placement(V(0, 0, -40), App.Rotation())
sketch3.addGeometry(Part.Circle(V(0, 0, 0), V(0, 0, 1), 20), False)
sketch3.addConstraint(Sketcher.Constraint("Coincident", 0, 3, -1, 1))
sketch3.addConstraint(Sketcher.Constraint("Diameter", 0, Q("40 mm")))
pad3 = doc.addObject("PartDesign::Pad", "Pad002")
body.addObject(pad3)
pad3.Profile = sketch3
pad3.Length = 80

sketch4 = doc.addObject("Sketcher::SketchObject", "Sketch003")
body.addObject(sketch4)
sketch4.AttachmentSupport = (doc.XY_Plane, [""])
sketch4.MapMode = "FlatFace"
sketch4.AttachmentOffset = App.Placement(V(0, 0, -40), App.Rotation())
sketch4.addGeometry(Part.Circle(V(0, 0, 0), V(0, 0, 1), 15), False)
sketch4.addConstraint(Sketcher.Constraint("Coincident", 0, 3, -1, 1))
sketch4.addConstraint(Sketcher.Constraint("Diameter", 0, Q("30 mm")))
pocket1 = doc.addObject("PartDesign::Pocket", "Pocket")
body.addObject(pocket1)
pocket1.Profile = sketch4
pocket1.Length = 80
pocket1.Reversed = True

sketch5 = doc.addObject("Sketcher::SketchObject", "Sketch004")
body.addObject(sketch5)
sketch5.AttachmentSupport = (doc.XY_Plane, [""])
sketch5.MapMode = "FlatFace"
sketch5.AttachmentOffset = App.Placement(V(0, 0, -40), App.Rotation())
add_polygon(sketch5, [(2, 16.5), (2, 13.5), (-2, 13.5), (-2, 16.5)])
sketch5.addConstraint(Sketcher.Constraint("Vertical", 0))
sketch5.addConstraint(Sketcher.Constraint("Horizontal", 1))
sketch5.addConstraint(Sketcher.Constraint("Vertical", 2))
sketch5.addConstraint(Sketcher.Constraint("Horizontal", 3))
sketch5.addConstraint(Sketcher.Constraint("DistanceX", 1, 2, 1, 1, Q("4 mm")))
sketch5.addConstraint(Sketcher.Constraint("DistanceY", 0, 2, 0, 1, Q("3 mm")))
sketch5.addConstraint(Sketcher.Constraint("DistanceX", -1, 1, 0, 2, Q("2 mm")))
sketch5.addConstraint(Sketcher.Constraint("DistanceY", -1, 1, 0, 2, Q("13.5 mm")))
pad4 = doc.addObject("PartDesign::Pad", "Pad003")
body.addObject(pad4)
pad4.Profile = sketch5
pad4.Length = 19
pad4.Reversed = True

sketch6 = doc.addObject("Sketcher::SketchObject", "Sketch005")
body.addObject(sketch6)
sketch6.AttachmentSupport = (doc.XY_Plane, [""])
sketch6.MapMode = "FlatFace"
sketch6.AttachmentOffset = App.Placement(V(0, 0, -40), App.Rotation())
sketch6.addGeometry(Part.Circle(V(0, 0, 0), V(0, 0, 1), 15), False)
sketch6.addConstraint(Sketcher.Constraint("Coincident", 0, 3, -1, 1))
sketch6.addConstraint(Sketcher.Constraint("Diameter", 0, Q("30 mm")))
pocket2 = doc.addObject("PartDesign::Pocket", "Pocket001")
body.addObject(pocket2)
pocket2.Profile = sketch6
pocket2.Type = "ThroughAll"

doc.recompute()
